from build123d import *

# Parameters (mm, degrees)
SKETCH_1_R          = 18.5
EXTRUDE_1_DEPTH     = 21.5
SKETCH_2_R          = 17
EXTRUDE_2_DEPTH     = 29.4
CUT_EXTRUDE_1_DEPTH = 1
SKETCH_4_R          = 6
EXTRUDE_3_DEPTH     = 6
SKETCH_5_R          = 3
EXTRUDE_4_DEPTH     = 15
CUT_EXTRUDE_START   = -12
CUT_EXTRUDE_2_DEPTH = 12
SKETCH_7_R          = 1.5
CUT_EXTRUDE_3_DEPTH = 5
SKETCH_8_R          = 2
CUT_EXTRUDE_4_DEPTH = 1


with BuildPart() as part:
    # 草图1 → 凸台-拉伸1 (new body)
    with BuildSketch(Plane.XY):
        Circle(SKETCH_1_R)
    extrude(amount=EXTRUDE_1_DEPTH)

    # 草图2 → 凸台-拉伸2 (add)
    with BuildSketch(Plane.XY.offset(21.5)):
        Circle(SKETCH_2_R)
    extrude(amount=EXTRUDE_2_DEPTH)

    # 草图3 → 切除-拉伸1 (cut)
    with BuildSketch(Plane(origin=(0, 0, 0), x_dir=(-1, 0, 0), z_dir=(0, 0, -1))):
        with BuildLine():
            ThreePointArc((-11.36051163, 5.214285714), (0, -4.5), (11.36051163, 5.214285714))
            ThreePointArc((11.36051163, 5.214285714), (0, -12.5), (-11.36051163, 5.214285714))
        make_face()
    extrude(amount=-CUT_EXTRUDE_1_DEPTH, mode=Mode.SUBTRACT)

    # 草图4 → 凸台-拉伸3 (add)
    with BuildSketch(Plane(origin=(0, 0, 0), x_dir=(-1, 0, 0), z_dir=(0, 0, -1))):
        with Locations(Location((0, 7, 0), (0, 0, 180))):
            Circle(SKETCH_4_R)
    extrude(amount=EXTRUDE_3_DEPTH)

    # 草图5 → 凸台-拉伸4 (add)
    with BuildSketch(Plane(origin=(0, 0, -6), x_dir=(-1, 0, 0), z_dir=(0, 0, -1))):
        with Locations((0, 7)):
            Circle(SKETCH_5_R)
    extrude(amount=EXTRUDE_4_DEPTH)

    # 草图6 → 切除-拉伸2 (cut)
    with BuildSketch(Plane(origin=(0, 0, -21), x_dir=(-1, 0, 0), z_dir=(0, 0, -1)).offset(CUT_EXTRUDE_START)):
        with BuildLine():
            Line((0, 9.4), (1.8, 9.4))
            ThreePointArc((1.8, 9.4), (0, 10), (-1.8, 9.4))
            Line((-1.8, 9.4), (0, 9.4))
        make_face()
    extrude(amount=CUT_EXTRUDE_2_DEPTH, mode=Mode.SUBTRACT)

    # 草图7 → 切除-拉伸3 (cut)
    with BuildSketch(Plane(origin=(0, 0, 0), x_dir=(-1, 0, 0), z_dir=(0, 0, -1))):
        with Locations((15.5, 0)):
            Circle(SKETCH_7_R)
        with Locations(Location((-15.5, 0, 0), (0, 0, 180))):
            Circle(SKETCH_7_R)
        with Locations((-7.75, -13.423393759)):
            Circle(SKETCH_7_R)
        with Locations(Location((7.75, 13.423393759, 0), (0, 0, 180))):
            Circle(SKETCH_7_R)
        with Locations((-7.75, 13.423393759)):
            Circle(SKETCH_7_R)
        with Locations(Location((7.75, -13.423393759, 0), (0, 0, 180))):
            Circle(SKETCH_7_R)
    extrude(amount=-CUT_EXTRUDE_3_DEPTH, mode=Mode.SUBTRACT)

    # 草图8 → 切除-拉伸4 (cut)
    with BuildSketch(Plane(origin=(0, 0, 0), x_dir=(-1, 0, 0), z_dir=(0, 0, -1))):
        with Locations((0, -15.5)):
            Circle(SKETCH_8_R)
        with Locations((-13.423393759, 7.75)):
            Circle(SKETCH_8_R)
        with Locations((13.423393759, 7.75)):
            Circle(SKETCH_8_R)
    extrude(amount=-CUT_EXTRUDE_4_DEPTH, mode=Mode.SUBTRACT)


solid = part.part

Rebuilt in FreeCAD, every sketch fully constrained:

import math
import FreeCAD as App
import Part
import Sketcher

V = App.Vector

doc = App.newDocument("Part")
params = doc.addObject("Spreadsheet::Sheet", "Params")
for row, (alias, value) in enumerate([
    ("sketch1_diameter", "37 mm"),
    ("pad1_length", "21.5 mm"),
    ("sketch2_diameter", "34 mm"),
    ("pad2_length", "29.4 mm"),
    ("sketch3_radius", "11.5 mm"),
    ("sketch3_radius2", "12.5 mm"),
    ("pocket1_length", "1 mm"),
    ("sketch4_diameter", "12 mm"),
    ("pad3_length", "6 mm"),
    ("sketch5_diameter", "6 mm"),
    ("pad4_length", "15 mm"),
    ("sketch6_radius", "3 mm"),
    ("sketch6_width", "3.6 mm"),
    ("pocket2_length", "12 mm"),
    ("sketch7_diameter", "3 mm"),
    ("pocket3_length", "5 mm"),
    ("sketch8_diameter", "4 mm"),
    ("pocket4_length", "1 mm"),
], start=1):
    params.set(f"A{row}", alias)
    params.set(f"B{row}", "=" + value)
    params.setAlias(f"B{row}", alias)

body = doc.addObject("PartDesign::Body", "Body")

# Sketch on XY plane
sketch1 = body.newObject("Sketcher::SketchObject", "Sketch")
sketch1.AttachmentSupport = (doc.getObject("XY_Plane"), [""])
sketch1.MapMode = "FlatFace"
sketch1.addGeometry(Part.Circle(V(0, 0, 0), V(0, 0, 1), 18), False)
sketch1.addConstraint([
    Sketcher.Constraint("Coincident", 0, 3, -1, 1),
    Sketcher.Constraint("Diameter", 0, 37.0),
])
sketch1.setExpression("Constraints[1]", "Params.sketch1_diameter")
pad1 = body.newObject("PartDesign::Pad", "Pad")
pad1.Profile = sketch1
pad1.setExpression("Length", "Params.pad1_length")

# Sketch on XY plane
sketch2 = body.newObject("Sketcher::SketchObject", "Sketch001")
sketch2.AttachmentSupport = (doc.getObject("XY_Plane"), [""])
sketch2.MapMode = "FlatFace"
sketch2.AttachmentOffset = App.Placement(V(0, 0, 21.5), App.Rotation())
sketch2.addGeometry(Part.Circle(V(0, 0, 0), V(0, 0, 1), 17), False)
sketch2.addConstraint([
    Sketcher.Constraint("Coincident", 0, 3, -1, 1),
    Sketcher.Constraint("Diameter", 0, 34.0),
])
sketch2.setExpression("Constraints[1]", "Params.sketch2_diameter")
pad2 = body.newObject("PartDesign::Pad", "Pad001")
pad2.Profile = sketch2
pad2.setExpression("Length", "Params.pad2_length")

# Sketch on XY plane
sketch3 = body.newObject("Sketcher::SketchObject", "Sketch002")
sketch3.AttachmentSupport = (doc.getObject("XY_Plane"), [""])
sketch3.MapMode = "FlatFace"
sketch3.addGeometry([
    Part.ArcOfCircle(Part.Circle(V(0, 7, 0), V(0, 0, 1), 12), math.radians(-171), math.radians(-9)),
    Part.ArcOfCircle(Part.Circle(V(0, 0, 0), V(0, 0, 1), 12), math.radians(155), math.radians(385)),
], False)
sketch3.addConstraint([
    Sketcher.Constraint("Coincident", 0, 1, 1, 1),
    Sketcher.Constraint("Coincident", 1, 2, 0, 2),
    Sketcher.Constraint("Coincident", 1, 3, -1, 1),
    Sketcher.Constraint("PointOnObject", 0, 3, -2),
    Sketcher.Constraint("Radius", 0, 11.5),
    Sketcher.Constraint("Radius", 1, 12.5),
    Sketcher.Constraint("DistanceY", -1, 1, 0, 3, 7.0),
])
sketch3.setExpression("Constraints[4]", "Params.sketch3_radius")
sketch3.setExpression("Constraints[5]", "Params.sketch3_radius2")
pocket1 = body.newObject("PartDesign::Pocket", "Pocket")
pocket1.Profile = sketch3
pocket1.setExpression("Length", "Params.pocket1_length")
pocket1.Reversed = True

# Sketch on XY plane
sketch4 = body.newObject("Sketcher::SketchObject", "Sketch003")
sketch4.AttachmentSupport = (doc.getObject("XY_Plane"), [""])
sketch4.MapMode = "FlatFace"
sketch4.addGeometry(Part.Circle(V(0, 7, 0), V(0, 0, 1), 6), False)
sketch4.addConstraint([
    Sketcher.Constraint("PointOnObject", 0, 3, -2),
    Sketcher.Constraint("Diameter", 0, 12.0),
    Sketcher.Constraint("DistanceY", -1, 1, 0, 3, 7.0),
])
sketch4.setExpression("Constraints[1]", "Params.sketch4_diameter")
pad3 = body.newObject("PartDesign::Pad", "Pad002")
pad3.Profile = sketch4
pad3.setExpression("Length", "Params.pad3_length")
pad3.Reversed = True

# Sketch on XY plane
sketch5 = body.newObject("Sketcher::SketchObject", "Sketch004")
sketch5.AttachmentSupport = (doc.getObject("XY_Plane"), [""])
sketch5.MapMode = "FlatFace"
sketch5.AttachmentOffset = App.Placement(V(0, 0, -6), App.Rotation())
sketch5.addGeometry(Part.Circle(V(0, 7, 0), V(0, 0, 1), 3), False)
sketch5.addConstraint([
    Sketcher.Constraint("PointOnObject", 0, 3, -2),
    Sketcher.Constraint("Diameter", 0, 6.0),
    Sketcher.Constraint("DistanceY", -1, 1, 0, 3, 7.0),
])
sketch5.setExpression("Constraints[1]", "Params.sketch5_diameter")
pad4 = body.newObject("PartDesign::Pad", "Pad003")
pad4.Profile = sketch5
pad4.setExpression("Length", "Params.pad4_length")
pad4.Reversed = True

# Sketch on XY plane
sketch6 = body.newObject("Sketcher::SketchObject", "Sketch005")
sketch6.AttachmentSupport = (doc.getObject("XY_Plane"), [""])
sketch6.MapMode = "FlatFace"
sketch6.AttachmentOffset = App.Placement(V(0, 0, -9), App.Rotation())
sketch6.addGeometry([
    Part.ArcOfCircle(Part.Circle(V(0, 7, 0), V(0, 0, 1), 3), math.radians(53), math.radians(127)),
    Part.LineSegment(V(1.8, 9.4, 0), V(-1.8, 9.4, 0)),
], False)
sketch6.addConstraint([
    Sketcher.Constraint("Coincident", 0, 1, 1, 1),
    Sketcher.Constraint("Coincident", 1, 2, 0, 2),
    Sketcher.Constraint("Horizontal", 1),
    Sketcher.Constraint("PointOnObject", 0, 3, -2),
    Sketcher.Constraint("Radius", 0, 3.0),
    Sketcher.Constraint("DistanceX", 1, 2, 1, 1, 3.6),
    Sketcher.Constraint("DistanceY", -1, 1, 0, 3, 7.0),
])
sketch6.setExpression("Constraints[4]", "Params.sketch6_radius")
sketch6.setExpression("Constraints[5]", "Params.sketch6_width")
pocket2 = body.newObject("PartDesign::Pocket", "Pocket001")
pocket2.Profile = sketch6
pocket2.setExpression("Length", "Params.pocket2_length")

# Sketch on XY plane
sketch7 = body.newObject("Sketcher::SketchObject", "Sketch006")
sketch7.AttachmentSupport = (doc.getObject("XY_Plane"), [""])
sketch7.MapMode = "FlatFace"
sketch7.addGeometry([
    Part.Circle(V(-15.5, 0, 0), V(0, 0, 1), 1.5),  # 0
    Part.Circle(V(15.5, 0, 0), V(0, 0, 1), 1.5),  # 1
    Part.Circle(V(7.8, -13.4, 0), V(0, 0, 1), 1.5),  # 2
    Part.Circle(V(-7.8, 13.4, 0), V(0, 0, 1), 1.5),  # 3
    Part.Circle(V(7.8, 13.4, 0), V(0, 0, 1), 1.5),  # 4
    Part.Circle(V(-7.8, -13.4, 0), V(0, 0, 1), 1.5),  # 5
], False)
sketch7.addConstraint([
    Sketcher.Constraint("Equal", 0, 1),
    Sketcher.Constraint("Equal", 1, 2),
    Sketcher.Constraint("Equal", 2, 3),
    Sketcher.Constraint("Equal", 3, 4),
    Sketcher.Constraint("Equal", 4, 5),
    Sketcher.Constraint("Symmetric", 0, 3, 1, 3, -1, 1),
    Sketcher.Constraint("Symmetric", 2, 3, 3, 3, -1, 1),
    Sketcher.Constraint("Symmetric", 4, 3, 5, 3, -1, 1),
    Sketcher.Constraint("Symmetric", 3, 3, 4, 3, -2),
    Sketcher.Constraint("PointOnObject", 0, 3, -1),
    Sketcher.Constraint("Diameter", 0, 3.0),
    Sketcher.Constraint("DistanceX", 0, 3, 1, 3, 31.0),
    Sketcher.Constraint("DistanceX", 3, 3, 2, 3, 15.5),
    Sketcher.Constraint("DistanceY", 2, 3, -1, 1, 13.423394),
])
sketch7.setExpression("Constraints[10]", "Params.sketch7_diameter")
pocket3 = body.newObject("PartDesign::Pocket", "Pocket002")
pocket3.Profile = sketch7
pocket3.setExpression("Length", "Params.pocket3_length")
pocket3.Reversed = True

# Sketch on XY plane
sketch8 = body.newObject("Sketcher::SketchObject", "Sketch007")
sketch8.AttachmentSupport = (doc.getObject("XY_Plane"), [""])
sketch8.MapMode = "FlatFace"
sketch8.addGeometry([
    Part.Circle(V(0, -15.5, 0), V(0, 0, 1), 2),
    Part.Circle(V(13.4, 7.8, 0), V(0, 0, 1), 2),
    Part.Circle(V(-13.4, 7.8, 0), V(0, 0, 1), 2),
], False)
sketch8.addConstraint([
    Sketcher.Constraint("Equal", 0, 1),
    Sketcher.Constraint("Equal", 1, 2),
    Sketcher.Constraint("Symmetric", 1, 3, 2, 3, -2),
    Sketcher.Constraint("PointOnObject", 0, 3, -2),
    Sketcher.Constraint("Diameter", 0, 4.0),
    Sketcher.Constraint("DistanceY", 0, 3, -1, 1, 15.5),
    Sketcher.Constraint("DistanceY", -1, 1, 1, 3, 7.75),
    Sketcher.Constraint("DistanceX", -1, 1, 1, 3, 13.423394),
])
sketch8.setExpression("Constraints[4]", "Params.sketch8_diameter")
pocket4 = body.newObject("PartDesign::Pocket", "Pocket003")
pocket4.Profile = sketch8
pocket4.setExpression("Length", "Params.pocket4_length")
pocket4.Reversed = True

doc.recompute()
